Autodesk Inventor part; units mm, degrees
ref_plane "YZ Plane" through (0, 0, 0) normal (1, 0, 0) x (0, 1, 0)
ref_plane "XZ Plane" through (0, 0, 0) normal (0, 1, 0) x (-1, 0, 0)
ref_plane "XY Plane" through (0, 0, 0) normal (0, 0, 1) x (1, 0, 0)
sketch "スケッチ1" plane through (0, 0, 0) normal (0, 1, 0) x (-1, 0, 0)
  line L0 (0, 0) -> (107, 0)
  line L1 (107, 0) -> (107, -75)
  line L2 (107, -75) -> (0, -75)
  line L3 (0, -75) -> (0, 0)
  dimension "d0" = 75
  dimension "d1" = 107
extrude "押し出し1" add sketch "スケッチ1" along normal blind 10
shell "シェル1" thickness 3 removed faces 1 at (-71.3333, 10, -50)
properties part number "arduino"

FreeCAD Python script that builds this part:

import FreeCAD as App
import Part
import Sketcher


def faces_at(feature, points):
    """Names of the faces that lie closest to the given points."""
    faces = feature.Shape.Faces
    near = lambda p: min(range(len(faces)), key=lambda i: faces[i].distToShape(Part.Vertex(*p))[0])
    return sorted({f"Face{near(p) + 1}" for p in points})

doc = App.newDocument("Part")
params = doc.addObject("Spreadsheet::Sheet", "Params")
for row, (alias, value) in enumerate([
    ("sketch1_width", "107 mm"),
    ("sketch1_height", "75 mm"),
    ("pad1_length", "10 mm"),
    ("thickness_wall", "3 mm"),
], start=1):
    params.set(f"A{row}", alias)
    params.set(f"B{row}", "=" + value)
    params.setAlias(f"B{row}", alias)

body = doc.addObject("PartDesign::Body", "Body")

# Sketch on XZ plane
sketch1 = body.newObject("Sketcher::SketchObject", "Sketch")
sketch1.AttachmentSupport = (doc.getObject("XZ_Plane"), [""])
sketch1.MapMode = "FlatFace"
sketch1.addGeometry([
    Part.LineSegment(App.Vector(-107, 0, 0), App.Vector(0, 0, 0)),
    Part.LineSegment(App.Vector(0, 0, 0), App.Vector(0, -75, 0)),
    Part.LineSegment(App.Vector(0, -75, 0), App.Vector(-107, -75, 0)),
    Part.LineSegment(App.Vector(-107, -75, 0), App.Vector(-107, 0, 0)),
], False)
sketch1.addConstraint([
    Sketcher.Constraint("Coincident", 0, 2, 1, 1),
    Sketcher.Constraint("Coincident", 1, 2, 2, 1),
    Sketcher.Constraint("Coincident", 2, 2, 3, 1),
    Sketcher.Constraint("Coincident", 3, 2, 0, 1),
    Sketcher.Constraint("Horizontal", 0),
    Sketcher.Constraint("Vertical", 1),
    Sketcher.Constraint("Horizontal", 2),
    Sketcher.Constraint("Vertical", 3),
    Sketcher.Constraint("Coincident", 0, 2, -1, 1),
    Sketcher.Constraint("DistanceX", 0, 1, 0, 2, 107.0),
    Sketcher.Constraint("DistanceY", 1, 2, 1, 1, 75.0),
])
sketch1.setExpression("Constraints[9]", "Params.sketch1_width")
sketch1.setExpression("Constraints[10]", "Params.sketch1_height")
pad1 = body.newObject("PartDesign::Pad", "Pad")
pad1.Profile = sketch1
pad1.setExpression("Length", "Params.pad1_length")
pad1.Reversed = True
doc.recompute()

thickness = body.newObject("PartDesign::Thickness", "Thickness")
thickness.Base = (pad1, faces_at(pad1, [(-71.333, 10, -50)]))
thickness.setExpression("Value", "Params.thickness_wall")
thickness.Reversed = True
thickness.Join = "Intersection"

doc.recompute()
